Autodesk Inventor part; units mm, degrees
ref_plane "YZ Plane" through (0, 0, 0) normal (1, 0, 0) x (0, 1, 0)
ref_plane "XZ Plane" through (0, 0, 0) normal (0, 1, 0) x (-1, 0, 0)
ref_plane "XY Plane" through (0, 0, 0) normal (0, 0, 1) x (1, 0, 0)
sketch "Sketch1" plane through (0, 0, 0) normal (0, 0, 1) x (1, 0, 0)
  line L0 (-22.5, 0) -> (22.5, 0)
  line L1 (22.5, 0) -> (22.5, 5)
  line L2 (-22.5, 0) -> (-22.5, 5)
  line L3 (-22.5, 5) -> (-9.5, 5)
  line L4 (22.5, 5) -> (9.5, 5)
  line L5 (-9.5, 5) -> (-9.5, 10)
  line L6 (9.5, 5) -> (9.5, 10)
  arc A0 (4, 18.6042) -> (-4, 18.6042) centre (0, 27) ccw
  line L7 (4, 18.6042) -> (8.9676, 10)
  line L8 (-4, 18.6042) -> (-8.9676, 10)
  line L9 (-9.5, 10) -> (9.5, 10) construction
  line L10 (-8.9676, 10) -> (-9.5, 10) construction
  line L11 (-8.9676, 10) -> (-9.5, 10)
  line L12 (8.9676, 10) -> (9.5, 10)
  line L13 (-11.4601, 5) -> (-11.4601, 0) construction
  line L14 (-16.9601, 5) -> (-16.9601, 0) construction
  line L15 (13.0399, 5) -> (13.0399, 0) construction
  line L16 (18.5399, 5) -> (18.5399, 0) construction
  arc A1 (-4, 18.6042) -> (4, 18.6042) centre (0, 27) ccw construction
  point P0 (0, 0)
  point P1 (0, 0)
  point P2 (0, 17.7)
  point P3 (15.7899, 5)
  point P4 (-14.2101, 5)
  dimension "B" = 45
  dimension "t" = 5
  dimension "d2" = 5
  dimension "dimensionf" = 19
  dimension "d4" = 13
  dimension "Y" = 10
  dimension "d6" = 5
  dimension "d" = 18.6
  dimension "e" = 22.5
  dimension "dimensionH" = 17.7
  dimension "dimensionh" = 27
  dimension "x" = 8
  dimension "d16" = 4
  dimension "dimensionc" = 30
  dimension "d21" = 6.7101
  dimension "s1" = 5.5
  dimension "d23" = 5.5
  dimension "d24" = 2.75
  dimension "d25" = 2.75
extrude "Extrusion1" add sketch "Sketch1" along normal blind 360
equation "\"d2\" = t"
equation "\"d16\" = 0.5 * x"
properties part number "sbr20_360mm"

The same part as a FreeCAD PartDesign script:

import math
import FreeCAD as App
import Part
import Sketcher
from FreeCAD import Vector
Q = App.Units.Quantity

doc = App.newDocument("Part")
body = doc.addObject("PartDesign::Body", "Body")

# Sketch on XY plane
sketch1 = body.newObject("Sketcher::SketchObject", "Sketch")
sketch1.AttachmentSupport = (doc.getObject("XY_Plane"), [""])
sketch1.MapMode = "FlatFace"
sketch1.addGeometry(Part.LineSegment(Vector(-22.5, 5, 0), Vector(-22.5, 0, 0)), False)
sketch1.addGeometry(Part.LineSegment(Vector(-22.5, 0, 0), Vector(22.5, 0, 0)), False)
sketch1.addGeometry(Part.LineSegment(Vector(22.5, 0, 0), Vector(22.5, 5, 0)), False)
sketch1.addGeometry(Part.LineSegment(Vector(22.5, 5, 0), Vector(9.5, 5, 0)), False)
sketch1.addGeometry(Part.LineSegment(Vector(9.5, 5, 0), Vector(9.5, 10, 0)), False)
sketch1.addGeometry(Part.LineSegment(Vector(9.5, 10, 0), Vector(9, 10, 0)), False)
sketch1.addGeometry(Part.LineSegment(Vector(9, 10, 0), Vector(4, 18.6, 0)), False)
sketch1.addGeometry(Part.ArcOfCircle(Part.Circle(Vector(0, 27, 0), Vector(0, 0, 1), 9.3), math.radians(-65), math.radians(245)), False)
sketch1.addGeometry(Part.LineSegment(Vector(-4, 18.6, 0), Vector(-9, 10, 0)), False)
sketch1.addGeometry(Part.LineSegment(Vector(-9, 10, 0), Vector(-9.5, 10, 0)), False)
sketch1.addGeometry(Part.LineSegment(Vector(-9.5, 10, 0), Vector(-9.5, 5, 0)), False)
sketch1.addGeometry(Part.LineSegment(Vector(-9.5, 5, 0), Vector(-22.5, 5, 0)), False)
sketch1.addConstraint(Sketcher.Constraint("Coincident", 0, 2, 1, 1))
sketch1.addConstraint(Sketcher.Constraint("Coincident", 1, 2, 2, 1))
sketch1.addConstraint(Sketcher.Constraint("Coincident", 2, 2, 3, 1))
sketch1.addConstraint(Sketcher.Constraint("Coincident", 3, 2, 4, 1))
sketch1.addConstraint(Sketcher.Constraint("Coincident", 4, 2, 5, 1))
sketch1.addConstraint(Sketcher.Constraint("Coincident", 5, 2, 6, 1))
sketch1.addConstraint(Sketcher.Constraint("Coincident", 6, 2, 7, 1))
sketch1.addConstraint(Sketcher.Constraint("Coincident", 7, 2, 8, 1))
sketch1.addConstraint(Sketcher.Constraint("Coincident", 8, 2, 9, 1))
sketch1.addConstraint(Sketcher.Constraint("Coincident", 9, 2, 10, 1))
sketch1.addConstraint(Sketcher.Constraint("Coincident", 10, 2, 11, 1))
sketch1.addConstraint(Sketcher.Constraint("Coincident", 11, 2, 0, 1))
sketch1.addConstraint(Sketcher.Constraint("Vertical", 0))
sketch1.addConstraint(Sketcher.Constraint("Horizontal", 1))
sketch1.addConstraint(Sketcher.Constraint("Vertical", 2))
sketch1.addConstraint(Sketcher.Constraint("Horizontal", 3))
sketch1.addConstraint(Sketcher.Constraint("Vertical", 4))
sketch1.addConstraint(Sketcher.Constraint("Horizontal", 5))
sketch1.addConstraint(Sketcher.Constraint("Horizontal", 9))
sketch1.addConstraint(Sketcher.Constraint("Vertical", 10))
sketch1.addConstraint(Sketcher.Constraint("Horizontal", 11))
sketch1.addConstraint(Sketcher.Constraint("Symmetric", 0, 2, 1, 2, -1, 1))
sketch1.addConstraint(Sketcher.Constraint("Symmetric", 6, 2, 7, 2, -2))
sketch1.addConstraint(Sketcher.Constraint("Symmetric", 5, 2, 8, 2, -2))
sketch1.addConstraint(Sketcher.Constraint("Symmetric", 3, 2, 10, 2, -2))
sketch1.addConstraint(Sketcher.Constraint("Equal", 2, 4))
sketch1.addConstraint(Sketcher.Constraint("Radius", 7, Q("9.3 mm")))
sketch1.addConstraint(Sketcher.Constraint("DistanceX", 1, 1, 1, 2, Q("45 mm")))
sketch1.addConstraint(Sketcher.Constraint("DistanceX", 3, 2, 3, 1, Q("13 mm")))
sketch1.addConstraint(Sketcher.Constraint("DistanceY", 0, 2, 0, 1, Q("5 mm")))
sketch1.addConstraint(Sketcher.Constraint("DistanceY", -1, 1, 7, 3, Q("27 mm")))
sketch1.addConstraint(Sketcher.Constraint("DistanceX", -1, 1, 6, 2, Q("4 mm")))
sketch1.addConstraint(Sketcher.Constraint("Angle", 6, Q("119.9998 deg")))
pad1 = body.newObject("PartDesign::Pad", "Pad")
pad1.Profile = sketch1
pad1.Length = 360

doc.recompute()
